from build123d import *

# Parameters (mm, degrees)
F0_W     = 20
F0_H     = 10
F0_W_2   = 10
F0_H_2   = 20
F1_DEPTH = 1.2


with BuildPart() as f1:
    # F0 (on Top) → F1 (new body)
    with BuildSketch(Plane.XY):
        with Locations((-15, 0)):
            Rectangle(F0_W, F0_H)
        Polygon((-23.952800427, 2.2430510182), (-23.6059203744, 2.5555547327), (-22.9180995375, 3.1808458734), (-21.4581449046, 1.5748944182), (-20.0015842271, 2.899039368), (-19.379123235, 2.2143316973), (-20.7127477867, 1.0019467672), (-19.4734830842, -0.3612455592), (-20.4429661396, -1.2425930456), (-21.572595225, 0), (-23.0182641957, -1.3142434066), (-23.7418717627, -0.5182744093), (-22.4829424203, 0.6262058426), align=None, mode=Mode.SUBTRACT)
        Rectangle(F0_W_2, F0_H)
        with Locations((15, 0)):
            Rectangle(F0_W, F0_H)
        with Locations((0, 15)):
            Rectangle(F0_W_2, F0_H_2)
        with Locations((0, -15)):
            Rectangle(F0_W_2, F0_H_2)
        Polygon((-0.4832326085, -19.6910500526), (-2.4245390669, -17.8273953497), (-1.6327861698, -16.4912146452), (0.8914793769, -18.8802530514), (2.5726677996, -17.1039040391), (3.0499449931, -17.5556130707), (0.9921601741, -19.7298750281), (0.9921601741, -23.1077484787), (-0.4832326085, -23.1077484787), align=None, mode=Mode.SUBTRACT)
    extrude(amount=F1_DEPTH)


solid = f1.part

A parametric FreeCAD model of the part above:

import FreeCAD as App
import Part
import Sketcher


def add_polygon(sketch, points):
    """Adds a closed chain of lines whose ends are joined by coincident constraints."""
    first, n = sketch.GeometryCount, len(points)
    for a, b in zip(points, points[1:] + points[:1]):
        sketch.addGeometry(Part.LineSegment(App.Vector(*a, 0), App.Vector(*b, 0)), False)
    for i in range(n):
        sketch.addConstraint(Sketcher.Constraint("Coincident", first + i, 2, first + (i + 1) % n, 1))

doc = App.newDocument("Part")
params = doc.addObject("Spreadsheet::Sheet", "Params")
for row, (alias, value) in enumerate([
    ("sketch1_width", "20 mm"),
    ("sketch1_width2", "10 mm"),
    ("pad1_length", "1.2 mm"),
], start=1):
    params.set(f"A{row}", alias)
    params.set(f"B{row}", "=" + value)
    params.setAlias(f"B{row}", alias)

body = doc.addObject("PartDesign::Body", "Body")

# Sketch on XY plane
sketch1 = body.newObject("Sketcher::SketchObject", "Sketch")
sketch1.AttachmentSupport = (doc.getObject("XY_Plane"), [""])
sketch1.MapMode = "FlatFace"
add_polygon(sketch1, [(-25, 5), (-25, -5), (-5, -5), (-5, -25), (5, -25), (5, -5), (25, -5), (25, 5), (5, 5), (5, 25), (-5, 25), (-5, 5)])  # lines 0-11
add_polygon(sketch1, [(-0.48, -23.11), (-0.48, -19.69), (-2.42, -17.83), (-1.63, -16.49), (0.89, -18.88), (2.57, -17.1), (3.05, -17.56), (0.99, -19.73), (0.99, -23.11)])  # lines 12-20
add_polygon(sketch1, [(-22.48, 0.63), (-23.95, 2.24), (-23.61, 2.56), (-22.92, 3.18), (-21.46, 1.57), (-20, 2.9), (-19.38, 2.21), (-20.71, 1), (-19.47, -0.36), (-20.44, -1.24), (-21.57, 0), (-23.02, -1.31), (-23.74, -0.52)])  # lines 21-33
sketch1.addConstraint([
    Sketcher.Constraint("Vertical", 0),
    Sketcher.Constraint("Horizontal", 1),
    Sketcher.Constraint("Vertical", 2),
    Sketcher.Constraint("Horizontal", 3),
    Sketcher.Constraint("Vertical", 4),
    Sketcher.Constraint("Horizontal", 5),
    Sketcher.Constraint("Vertical", 6),
    Sketcher.Constraint("Horizontal", 7),
    Sketcher.Constraint("Vertical", 8),
    Sketcher.Constraint("Horizontal", 9),
    Sketcher.Constraint("Vertical", 10),
    Sketcher.Constraint("Horizontal", 11),
    Sketcher.Constraint("Vertical", 12),
    Sketcher.Constraint("Vertical", 19),
    Sketcher.Constraint("Horizontal", 20),
    Sketcher.Constraint("Symmetric", 0, 2, 6, 2, -1, 1),
    Sketcher.Constraint("Symmetric", 2, 2, 8, 2, -1, 1),
    Sketcher.Constraint("Symmetric", 4, 2, 10, 2, -1, 1),
    Sketcher.Constraint("Symmetric", 1, 2, 4, 2, -2),
    Sketcher.Constraint("PointOnObject", 30, 2, -1),
    Sketcher.Constraint("Perpendicular", 15, 16),
    Sketcher.Constraint("Perpendicular", 16, 17),
    Sketcher.Constraint("Perpendicular", 17, 18),
    Sketcher.Constraint("Perpendicular", 21, 23),
    Sketcher.Constraint("Perpendicular", 23, 24),
    Sketcher.Constraint("Perpendicular", 24, 25),
    Sketcher.Constraint("Perpendicular", 25, 26),
    Sketcher.Constraint("Perpendicular", 26, 27),
    Sketcher.Constraint("Perpendicular", 27, 28),
    Sketcher.Constraint("Perpendicular", 28, 29),
    Sketcher.Constraint("Perpendicular", 29, 30),
    Sketcher.Constraint("Perpendicular", 30, 31),
    Sketcher.Constraint("Perpendicular", 31, 32),
    Sketcher.Constraint("Perpendicular", 32, 33),
    Sketcher.Constraint("Equal", 9, 0),
    Sketcher.Constraint("Equal", 11, 2),
    Sketcher.Constraint("DistanceX", 1, 1, 1, 2, 20.0),
    Sketcher.Constraint("DistanceX", 3, 1, 3, 2, 10.0),
    Sketcher.Constraint("DistanceY", 12, 1, 12, 2, 3.416698),
    Sketcher.Constraint("Distance", 28, 1.8423),
    Sketcher.Constraint("DistanceX", 21, 2, -1, 1, 23.9528),
    Sketcher.Constraint("DistanceX", 23, 2, -1, 1, 22.9181),
    Sketcher.Constraint("DistanceX", 12, 2, 16, 2, 3.0559),
    Sketcher.Constraint("DistanceY", 17, 2, 14, 2, 1.064398),
    Sketcher.Constraint("DistanceX", 13, 2, 18, 2, 3.416699),
    Sketcher.Constraint("DistanceY", 27, 2, 23, 2, 2.178899),
    Sketcher.Constraint("DistanceX", 25, 2, 28, 2, 0.528101),
    Sketcher.Constraint("DistanceX", 31, 2, 29, 2, 2.575298),
    Sketcher.Constraint("Distance", 17, 0.657141),
    Sketcher.Constraint("Distance", 24, 2.17038),
    Sketcher.Constraint("Distance", 27, 1.802341),
    Sketcher.Constraint("Distance", 32, 1.07572),
    Sketcher.Constraint("DistanceX", 20, 2, 20, 1, 1.475393),
    Sketcher.Constraint("DistanceY", 19, 2, 19, 1, 3.377873),
    Sketcher.Constraint("DistanceY", 12, 2, -1, 1, 19.69105),
    Sketcher.Constraint("DistanceX", 13, 2, -1, 1, 2.424539),
    Sketcher.Constraint("DistanceX", -1, 1, 15, 2, 0.891479),
    Sketcher.Constraint("DistanceY", -1, 1, 21, 2, 2.243051),
    Sketcher.Constraint("DistanceX", 22, 2, -1, 1, 23.60592),
    Sketcher.Constraint("DistanceY", -1, 1, 25, 2, 2.899039),
    Sketcher.Constraint("DistanceY", -1, 1, 26, 2, 2.214332),
    Sketcher.Constraint("DistanceX", 32, 2, -1, 1, 23.741872),
    Sketcher.Constraint("DistanceY", 13, 2, 14, 2, 1.336181),
    Sketcher.Constraint("DistanceY", 15, 2, 14, 2, 2.389038),
])
sketch1.setExpression("Constraints[70]", "Params.sketch1_width")
sketch1.setExpression("Constraints[71]", "Params.sketch1_width2")
pad1 = body.newObject("PartDesign::Pad", "Pad")
pad1.Profile = sketch1
pad1.setExpression("Length", "Params.pad1_length")

doc.recompute()
